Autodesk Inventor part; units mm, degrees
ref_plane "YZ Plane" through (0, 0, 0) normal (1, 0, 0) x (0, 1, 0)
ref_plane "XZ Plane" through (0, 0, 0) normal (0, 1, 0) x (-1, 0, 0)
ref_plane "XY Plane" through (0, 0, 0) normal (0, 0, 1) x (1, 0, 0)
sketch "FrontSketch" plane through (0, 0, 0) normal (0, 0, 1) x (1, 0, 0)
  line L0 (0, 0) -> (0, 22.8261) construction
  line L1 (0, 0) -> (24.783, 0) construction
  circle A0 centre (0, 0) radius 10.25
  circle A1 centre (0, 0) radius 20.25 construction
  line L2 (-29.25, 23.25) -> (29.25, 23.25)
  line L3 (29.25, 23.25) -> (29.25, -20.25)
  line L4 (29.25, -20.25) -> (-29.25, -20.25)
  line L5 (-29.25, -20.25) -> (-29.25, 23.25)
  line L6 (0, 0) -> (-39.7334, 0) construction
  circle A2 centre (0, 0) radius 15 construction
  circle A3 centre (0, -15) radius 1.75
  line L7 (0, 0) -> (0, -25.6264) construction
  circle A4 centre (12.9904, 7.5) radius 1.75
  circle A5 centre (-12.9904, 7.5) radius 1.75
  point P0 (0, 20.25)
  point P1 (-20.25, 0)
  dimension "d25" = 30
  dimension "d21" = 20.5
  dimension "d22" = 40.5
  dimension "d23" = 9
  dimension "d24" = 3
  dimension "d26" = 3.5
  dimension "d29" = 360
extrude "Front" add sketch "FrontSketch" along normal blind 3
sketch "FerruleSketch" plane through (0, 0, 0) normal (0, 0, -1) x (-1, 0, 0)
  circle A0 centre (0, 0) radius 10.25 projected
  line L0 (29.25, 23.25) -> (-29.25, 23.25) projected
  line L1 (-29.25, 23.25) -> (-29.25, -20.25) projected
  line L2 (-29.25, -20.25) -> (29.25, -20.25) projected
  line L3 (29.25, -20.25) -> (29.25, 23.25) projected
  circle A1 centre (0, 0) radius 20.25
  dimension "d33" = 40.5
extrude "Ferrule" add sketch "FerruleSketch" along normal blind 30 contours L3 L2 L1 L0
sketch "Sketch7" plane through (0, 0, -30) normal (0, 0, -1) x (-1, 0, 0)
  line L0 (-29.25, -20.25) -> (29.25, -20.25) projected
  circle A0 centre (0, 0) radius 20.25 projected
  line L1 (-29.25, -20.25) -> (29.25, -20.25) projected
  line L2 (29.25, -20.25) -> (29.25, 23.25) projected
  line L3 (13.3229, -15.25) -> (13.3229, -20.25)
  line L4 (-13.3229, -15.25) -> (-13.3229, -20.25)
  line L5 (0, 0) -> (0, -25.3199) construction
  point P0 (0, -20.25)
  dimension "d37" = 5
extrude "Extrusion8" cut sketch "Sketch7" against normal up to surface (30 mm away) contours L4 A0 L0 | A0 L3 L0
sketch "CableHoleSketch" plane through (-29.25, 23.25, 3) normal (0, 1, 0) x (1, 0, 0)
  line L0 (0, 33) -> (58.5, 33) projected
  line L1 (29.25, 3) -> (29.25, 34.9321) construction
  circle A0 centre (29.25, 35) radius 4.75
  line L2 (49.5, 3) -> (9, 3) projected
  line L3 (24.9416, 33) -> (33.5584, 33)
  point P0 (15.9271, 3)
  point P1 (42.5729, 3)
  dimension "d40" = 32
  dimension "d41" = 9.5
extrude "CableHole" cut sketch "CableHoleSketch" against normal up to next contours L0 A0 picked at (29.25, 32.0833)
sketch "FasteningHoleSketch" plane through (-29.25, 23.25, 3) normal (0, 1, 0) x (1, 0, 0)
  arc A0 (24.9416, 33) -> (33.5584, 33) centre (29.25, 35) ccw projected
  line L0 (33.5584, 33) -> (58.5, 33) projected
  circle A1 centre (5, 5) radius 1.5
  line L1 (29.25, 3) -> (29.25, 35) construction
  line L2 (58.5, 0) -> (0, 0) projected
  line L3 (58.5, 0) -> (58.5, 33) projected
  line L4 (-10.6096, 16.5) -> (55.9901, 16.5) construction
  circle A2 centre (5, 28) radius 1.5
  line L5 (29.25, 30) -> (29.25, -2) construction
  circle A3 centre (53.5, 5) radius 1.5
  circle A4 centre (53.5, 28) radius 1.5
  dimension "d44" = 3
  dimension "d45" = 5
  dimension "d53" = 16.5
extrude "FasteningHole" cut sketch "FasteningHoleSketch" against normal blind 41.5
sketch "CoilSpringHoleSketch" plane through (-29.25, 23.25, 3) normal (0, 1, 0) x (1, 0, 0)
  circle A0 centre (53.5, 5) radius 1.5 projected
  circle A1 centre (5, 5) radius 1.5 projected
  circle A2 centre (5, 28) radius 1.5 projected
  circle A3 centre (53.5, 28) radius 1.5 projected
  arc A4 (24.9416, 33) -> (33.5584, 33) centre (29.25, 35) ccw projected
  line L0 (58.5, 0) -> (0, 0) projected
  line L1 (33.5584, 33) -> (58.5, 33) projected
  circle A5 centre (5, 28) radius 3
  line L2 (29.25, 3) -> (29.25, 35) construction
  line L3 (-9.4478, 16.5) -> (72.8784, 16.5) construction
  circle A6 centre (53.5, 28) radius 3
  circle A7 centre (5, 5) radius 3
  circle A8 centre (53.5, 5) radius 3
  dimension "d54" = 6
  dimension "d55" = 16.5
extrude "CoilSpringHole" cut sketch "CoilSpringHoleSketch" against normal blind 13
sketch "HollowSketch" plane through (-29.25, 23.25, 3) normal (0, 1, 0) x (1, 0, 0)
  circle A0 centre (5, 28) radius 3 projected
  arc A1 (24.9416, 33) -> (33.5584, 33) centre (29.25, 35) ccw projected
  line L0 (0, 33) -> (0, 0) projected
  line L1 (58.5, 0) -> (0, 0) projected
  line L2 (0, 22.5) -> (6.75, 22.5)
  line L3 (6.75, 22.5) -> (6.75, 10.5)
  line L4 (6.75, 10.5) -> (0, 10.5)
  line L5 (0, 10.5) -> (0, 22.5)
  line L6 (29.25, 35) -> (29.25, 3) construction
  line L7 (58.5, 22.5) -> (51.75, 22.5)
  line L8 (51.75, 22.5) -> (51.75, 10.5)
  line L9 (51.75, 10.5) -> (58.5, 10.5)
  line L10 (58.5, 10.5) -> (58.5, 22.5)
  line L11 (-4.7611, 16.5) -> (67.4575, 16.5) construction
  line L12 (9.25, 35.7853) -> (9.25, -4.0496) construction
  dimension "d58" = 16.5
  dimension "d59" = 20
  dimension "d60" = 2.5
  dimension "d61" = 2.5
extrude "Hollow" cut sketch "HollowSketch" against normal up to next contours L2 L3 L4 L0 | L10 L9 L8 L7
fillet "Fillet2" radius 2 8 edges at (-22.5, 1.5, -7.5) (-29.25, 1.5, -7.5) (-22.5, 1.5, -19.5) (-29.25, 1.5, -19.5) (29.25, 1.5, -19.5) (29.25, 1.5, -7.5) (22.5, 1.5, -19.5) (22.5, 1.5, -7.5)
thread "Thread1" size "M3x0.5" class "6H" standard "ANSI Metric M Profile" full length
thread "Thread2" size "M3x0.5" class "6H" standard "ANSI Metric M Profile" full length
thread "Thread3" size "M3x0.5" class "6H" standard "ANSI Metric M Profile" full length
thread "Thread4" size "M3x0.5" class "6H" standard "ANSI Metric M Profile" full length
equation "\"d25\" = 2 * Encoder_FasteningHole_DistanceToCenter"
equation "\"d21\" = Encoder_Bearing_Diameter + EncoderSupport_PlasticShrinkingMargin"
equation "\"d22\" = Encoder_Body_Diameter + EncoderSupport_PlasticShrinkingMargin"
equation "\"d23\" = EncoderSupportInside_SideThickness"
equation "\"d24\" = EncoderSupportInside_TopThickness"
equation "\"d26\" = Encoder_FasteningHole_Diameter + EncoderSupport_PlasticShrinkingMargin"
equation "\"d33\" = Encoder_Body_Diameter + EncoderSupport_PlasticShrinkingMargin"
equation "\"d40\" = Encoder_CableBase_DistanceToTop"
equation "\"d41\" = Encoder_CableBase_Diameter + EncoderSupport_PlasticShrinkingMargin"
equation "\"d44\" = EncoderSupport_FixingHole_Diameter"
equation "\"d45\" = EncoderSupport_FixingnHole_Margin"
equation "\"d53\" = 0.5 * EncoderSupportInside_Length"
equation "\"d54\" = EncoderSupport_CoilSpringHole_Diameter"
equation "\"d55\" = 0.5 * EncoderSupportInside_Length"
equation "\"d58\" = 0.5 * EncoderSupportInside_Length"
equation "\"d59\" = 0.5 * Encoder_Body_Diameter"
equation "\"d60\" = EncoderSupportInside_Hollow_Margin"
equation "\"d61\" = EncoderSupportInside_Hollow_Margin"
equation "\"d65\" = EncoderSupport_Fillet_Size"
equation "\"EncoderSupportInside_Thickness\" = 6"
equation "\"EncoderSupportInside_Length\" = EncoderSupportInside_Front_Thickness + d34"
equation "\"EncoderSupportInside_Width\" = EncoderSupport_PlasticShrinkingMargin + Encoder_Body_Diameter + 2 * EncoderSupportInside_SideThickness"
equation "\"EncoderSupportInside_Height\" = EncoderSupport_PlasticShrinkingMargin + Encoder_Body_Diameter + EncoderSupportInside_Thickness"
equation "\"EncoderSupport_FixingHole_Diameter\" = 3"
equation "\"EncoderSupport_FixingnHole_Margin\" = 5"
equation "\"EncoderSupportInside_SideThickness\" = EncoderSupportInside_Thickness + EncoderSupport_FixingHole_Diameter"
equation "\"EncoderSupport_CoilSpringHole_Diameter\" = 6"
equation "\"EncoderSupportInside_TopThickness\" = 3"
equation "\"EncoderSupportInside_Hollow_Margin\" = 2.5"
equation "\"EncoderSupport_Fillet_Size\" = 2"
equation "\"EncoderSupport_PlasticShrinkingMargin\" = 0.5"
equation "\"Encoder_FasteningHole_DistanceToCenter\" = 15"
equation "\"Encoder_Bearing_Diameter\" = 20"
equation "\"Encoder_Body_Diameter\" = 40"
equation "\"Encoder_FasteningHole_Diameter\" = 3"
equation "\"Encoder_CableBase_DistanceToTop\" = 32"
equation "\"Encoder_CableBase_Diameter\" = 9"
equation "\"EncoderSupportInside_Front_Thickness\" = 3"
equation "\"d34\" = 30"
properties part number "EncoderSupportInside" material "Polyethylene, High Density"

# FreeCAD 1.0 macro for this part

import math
import FreeCAD as App
import Part
import Sketcher
from FreeCAD import Vector


def edges_at(feature, points):
    """Names of the edges that pass closest to the given points."""
    edges = feature.Shape.Edges
    near = lambda p: min(range(len(edges)), key=lambda i: edges[i].distToShape(Part.Vertex(*p))[0])
    return sorted({f"Edge{near(p) + 1}" for p in points})


def add_polygon(sketch, points):
    """Adds a closed chain of lines whose ends are joined by coincident constraints."""
    first, n = sketch.GeometryCount, len(points)
    for a, b in zip(points, points[1:] + points[:1]):
        sketch.addGeometry(Part.LineSegment(App.Vector(*a, 0), App.Vector(*b, 0)), False)
    for i in range(n):
        sketch.addConstraint(Sketcher.Constraint("Coincident", first + i, 2, first + (i + 1) % n, 1))

doc = App.newDocument("Part")
body = doc.addObject("PartDesign::Body", "Body")

sketch1 = doc.addObject("Sketcher::SketchObject", "Sketch")
body.addObject(sketch1)
sketch1.AttachmentSupport = (doc.XY_Plane, [""])
sketch1.MapMode = "FlatFace"
add_polygon(sketch1, [(29.2, 23.2), (-29.2, 23.2), (-29.2, -20.2), (29.2, -20.2)])
sketch1.addGeometry(Part.Circle(Vector(0, -15, 0), Vector(0, 0, 1), 1.8), False)
sketch1.addGeometry(Part.Circle(Vector(0, 0, 0), Vector(0, 0, 1), 10.2), False)
sketch1.addGeometry(Part.Circle(Vector(-13, 7.5, 0), Vector(0, 0, 1), 1.8), False)
sketch1.addGeometry(Part.Circle(Vector(13, 7.5, 0), Vector(0, 0, 1), 1.8), False)
sketch1.addConstraint(Sketcher.Constraint("Horizontal", 0))
sketch1.addConstraint(Sketcher.Constraint("Vertical", 1))
sketch1.addConstraint(Sketcher.Constraint("Horizontal", 2))
sketch1.addConstraint(Sketcher.Constraint("Vertical", 3))
sketch1.addConstraint(Sketcher.Constraint("Coincident", 5, 3, -1, 1))
sketch1.addConstraint(Sketcher.Constraint("Equal", 4, 6))
sketch1.addConstraint(Sketcher.Constraint("Equal", 6, 7))
sketch1.addConstraint(Sketcher.Constraint("Symmetric", 6, 3, 7, 3, -2))
sketch1.addConstraint(Sketcher.Constraint("PointOnObject", 4, 3, -2))
sketch1.addConstraint(Sketcher.Constraint("Diameter", 4, 3.5))
sketch1.addConstraint(Sketcher.Constraint("Diameter", 5, 20.5))
sketch1.addConstraint(Sketcher.Constraint("DistanceX", 0, 2, 0, 1, 58.5))
sketch1.addConstraint(Sketcher.Constraint("DistanceY", 1, 2, 1, 1, 43.5))
sketch1.addConstraint(Sketcher.Constraint("DistanceY", 4, 3, -1, 1, 15.0))
sketch1.addConstraint(Sketcher.Constraint("DistanceY", -1, 1, 6, 3, 7.5))
sketch1.addConstraint(Sketcher.Constraint("DistanceX", 0, 2, -1, 1, 29.25))
sketch1.addConstraint(Sketcher.Constraint("DistanceY", -1, 1, 0, 2, 23.25))
sketch1.addConstraint(Sketcher.Constraint("DistanceX", 6, 3, -1, 1, 12.9904))
pad1 = doc.addObject("PartDesign::Pad", "Pad")
body.addObject(pad1)
pad1.Profile = sketch1
pad1.Length = 3

sketch2 = doc.addObject("Sketcher::SketchObject", "Sketch001")
body.addObject(sketch2)
sketch2.AttachmentSupport = (doc.XY_Plane, [""])
sketch2.MapMode = "FlatFace"
add_polygon(sketch2, [(-29, -20), (-29, 23), (29, 23), (29, -20), (0, -20)])
sketch2.addGeometry(Part.Circle(Vector(0, 0, 0), Vector(0, 0, 1), 20), False)
sketch2.addConstraint(Sketcher.Constraint("Vertical", 0))
sketch2.addConstraint(Sketcher.Constraint("Horizontal", 1))
sketch2.addConstraint(Sketcher.Constraint("Vertical", 2))
sketch2.addConstraint(Sketcher.Constraint("Horizontal", 3))
sketch2.addConstraint(Sketcher.Constraint("Horizontal", 4))
sketch2.addConstraint(Sketcher.Constraint("Coincident", 5, 3, -1, 1))
sketch2.addConstraint(Sketcher.Constraint("PointOnObject", 3, 2, -2))
sketch2.addConstraint(Sketcher.Constraint("Equal", 3, 4))
sketch2.addConstraint(Sketcher.Constraint("Diameter", 5, 40.5))
sketch2.addConstraint(Sketcher.Constraint("DistanceX", 1, 1, 1, 2, 58.5))
sketch2.addConstraint(Sketcher.Constraint("DistanceY", 0, 1, 0, 2, 43.5))
sketch2.addConstraint(Sketcher.Constraint("DistanceY", -1, 1, 0, 2, 23.25))
pad2 = doc.addObject("PartDesign::Pad", "Pad001")
body.addObject(pad2)
pad2.Profile = sketch2
pad2.Length = 30
pad2.Reversed = True

sketch3 = doc.addObject("Sketcher::SketchObject", "Sketch002")
body.addObject(sketch3)
sketch3.AttachmentSupport = (doc.XY_Plane, [""])
sketch3.MapMode = "FlatFace"
sketch3.AttachmentOffset = App.Placement(Vector(0, 0, -30), App.Rotation())
sketch3.addGeometry(Part.LineSegment(Vector(13, -15, 0), Vector(13, -20, 0)), False)
sketch3.addGeometry(Part.LineSegment(Vector(13, -20, 0), Vector(0, -20, 0)), False)
sketch3.addGeometry(Part.ArcOfCircle(Part.Circle(Vector(0, 0, 0), Vector(0, 0, 1), 20), math.radians(-90), math.radians(-49)), False)
sketch3.addGeometry(Part.ArcOfCircle(Part.Circle(Vector(0, 0, 0), Vector(0, 0, 1), 20), math.radians(-131), math.radians(-90)), False)
sketch3.addGeometry(Part.LineSegment(Vector(0, -20, 0), Vector(-13, -20, 0)), False)
sketch3.addGeometry(Part.LineSegment(Vector(-13, -20, 0), Vector(-13, -15, 0)), False)
sketch3.addConstraint(Sketcher.Constraint("Coincident", 0, 2, 1, 1))
sketch3.addConstraint(Sketcher.Constraint("Tangent", 1, 2, 2, 1))
sketch3.addConstraint(Sketcher.Constraint("Coincident", 2, 2, 0, 1))
sketch3.addConstraint(Sketcher.Constraint("Tangent", 3, 2, 4, 1))
sketch3.addConstraint(Sketcher.Constraint("Coincident", 4, 2, 5, 1))
sketch3.addConstraint(Sketcher.Constraint("Coincident", 5, 2, 3, 1))
sketch3.addConstraint(Sketcher.Constraint("Vertical", 0))
sketch3.addConstraint(Sketcher.Constraint("Horizontal", 1))
sketch3.addConstraint(Sketcher.Constraint("Horizontal", 4))
sketch3.addConstraint(Sketcher.Constraint("Vertical", 5))
sketch3.addConstraint(Sketcher.Constraint("Coincident", 2, 3, -1, 1))
sketch3.addConstraint(Sketcher.Constraint("Coincident", 3, 3, -1, 1))
sketch3.addConstraint(Sketcher.Constraint("Equal", 2, 3))
sketch3.addConstraint(Sketcher.Constraint("Horizontal", 2, 2, 5, 2))
sketch3.addConstraint(Sketcher.Constraint("DistanceY", 0, 2, 0, 1, 5.0))
sketch3.addConstraint(Sketcher.Constraint("Radius", 2, 20.25))
pocket1 = doc.addObject("PartDesign::Pocket", "Pocket")
body.addObject(pocket1)
pocket1.Profile = sketch3
pocket1.Length = 30
pocket1.Reversed = True

sketch4 = doc.addObject("Sketcher::SketchObject", "Sketch003")
body.addObject(sketch4)
sketch4.AttachmentSupport = (doc.XZ_Plane, [""])
sketch4.MapMode = "FlatFace"
sketch4.AttachmentOffset = App.Placement(Vector(0, 0, -23.25), App.Rotation())
sketch4.addGeometry(Part.LineSegment(Vector(4.3, -30, 0), Vector(-4.3, -30, 0)), False)
sketch4.addGeometry(Part.ArcOfCircle(Part.Circle(Vector(0, -32, 0), Vector(0, 0, 1), 4.8), math.radians(25), math.radians(155)), False)
sketch4.addConstraint(Sketcher.Constraint("Coincident", 0, 1, 1, 1))
sketch4.addConstraint(Sketcher.Constraint("Coincident", 1, 2, 0, 2))
sketch4.addConstraint(Sketcher.Constraint("Horizontal", 0))
sketch4.addConstraint(Sketcher.Constraint("PointOnObject", 1, 3, -2))
sketch4.addConstraint(Sketcher.Constraint("Radius", 1, 4.75))
sketch4.addConstraint(Sketcher.Constraint("DistanceY", 1, 3, -1, 1, 32.0))
sketch4.addConstraint(Sketcher.Constraint("DistanceY", 0, 1, -1, 1, 30.0))
pocket2 = doc.addObject("PartDesign::Pocket", "Pocket001")
body.addObject(pocket2)
pocket2.Profile = sketch4
pocket2.Type = "UpToFirst"
pocket2.Reversed = True

sketch5 = doc.addObject("Sketcher::SketchObject", "Sketch004")
body.addObject(sketch5)
sketch5.AttachmentSupport = (doc.XZ_Plane, [""])
sketch5.MapMode = "FlatFace"
sketch5.AttachmentOffset = App.Placement(Vector(0, 0, -23.25), App.Rotation())
sketch5.addGeometry(Part.Circle(Vector(-24.2, -2, 0), Vector(0, 0, 1), 1.5), False)
sketch5.addGeometry(Part.Circle(Vector(-24.2, -25, 0), Vector(0, 0, 1), 1.5), False)
sketch5.addGeometry(Part.Circle(Vector(24.2, -2, 0), Vector(0, 0, 1), 1.5), False)
sketch5.addGeometry(Part.Circle(Vector(24.2, -25, 0), Vector(0, 0, 1), 1.5), False)
sketch5.addConstraint(Sketcher.Constraint("Equal", 0, 1))
sketch5.addConstraint(Sketcher.Constraint("Equal", 1, 2))
sketch5.addConstraint(Sketcher.Constraint("Equal", 2, 3))
sketch5.addConstraint(Sketcher.Constraint("Symmetric", 0, 3, 2, 3, -2))
sketch5.addConstraint(Sketcher.Constraint("Symmetric", 1, 3, 3, 3, -2))
sketch5.addConstraint(Sketcher.Constraint("Vertical", 0, 3, 1, 3))
sketch5.addConstraint(Sketcher.Constraint("Diameter", 0, 3.0))
sketch5.addConstraint(Sketcher.Constraint("DistanceY", 0, 3, -1, 1, 2.0))
sketch5.addConstraint(Sketcher.Constraint("DistanceY", 1, 3, -1, 1, 25.0))
sketch5.addConstraint(Sketcher.Constraint("DistanceX", 0, 3, 2, 3, 48.5))
pocket3 = doc.addObject("PartDesign::Pocket", "Pocket002")
body.addObject(pocket3)
pocket3.Profile = sketch5
pocket3.Length = 41.5
pocket3.Reversed = True

sketch6 = doc.addObject("Sketcher::SketchObject", "Sketch005")
body.addObject(sketch6)
sketch6.AttachmentSupport = (doc.XZ_Plane, [""])
sketch6.MapMode = "FlatFace"
sketch6.AttachmentOffset = App.Placement(Vector(0, 0, -23.25), App.Rotation())
sketch6.addGeometry(Part.Circle(Vector(-24.2, -25, 0), Vector(0, 0, 1), 3), False)
sketch6.addGeometry(Part.Circle(Vector(-24.2, -25, 0), Vector(0, 0, 1), 1.5), False)
sketch6.addGeometry(Part.Circle(Vector(24.2, -25, 0), Vector(0, 0, 1), 3), False)
sketch6.addGeometry(Part.Circle(Vector(24.2, -25, 0), Vector(0, 0, 1), 1.5), False)
sketch6.addGeometry(Part.Circle(Vector(-24.2, -2, 0), Vector(0, 0, 1), 3), False)
sketch6.addGeometry(Part.Circle(Vector(-24.2, -2, 0), Vector(0, 0, 1), 1.5), False)
sketch6.addGeometry(Part.Circle(Vector(24.2, -2, 0), Vector(0, 0, 1), 3), False)
sketch6.addGeometry(Part.Circle(Vector(24.2, -2, 0), Vector(0, 0, 1), 1.5), False)
sketch6.addConstraint(Sketcher.Constraint("Coincident", 1, 3, 0, 3))
sketch6.addConstraint(Sketcher.Constraint("Coincident", 3, 3, 2, 3))
sketch6.addConstraint(Sketcher.Constraint("Coincident", 5, 3, 4, 3))
sketch6.addConstraint(Sketcher.Constraint("Coincident", 7, 3, 6, 3))
sketch6.addConstraint(Sketcher.Constraint("Equal", 0, 2))
sketch6.addConstraint(Sketcher.Constraint("Equal", 1, 3))
sketch6.addConstraint(Sketcher.Constraint("Equal", 2, 4))
sketch6.addConstraint(Sketcher.Constraint("Equal", 3, 5))
sketch6.addConstraint(Sketcher.Constraint("Equal", 4, 6))
sketch6.addConstraint(Sketcher.Constraint("Equal", 5, 7))
sketch6.addConstraint(Sketcher.Constraint("Symmetric", 0, 3, 2, 3, -2))
sketch6.addConstraint(Sketcher.Constraint("Symmetric", 4, 3, 6, 3, -2))
sketch6.addConstraint(Sketcher.Constraint("Vertical", 1, 3, 4, 3))
sketch6.addConstraint(Sketcher.Constraint("Diameter", 0, 6.0))
sketch6.addConstraint(Sketcher.Constraint("Diameter", 1, 3.0))
sketch6.addConstraint(Sketcher.Constraint("DistanceY", 0, 3, -1, 1, 25.0))
sketch6.addConstraint(Sketcher.Constraint("DistanceY", 4, 3, -1, 1, 2.0))
sketch6.addConstraint(Sketcher.Constraint("DistanceX", 0, 3, 2, 3, 48.5))
pocket4 = doc.addObject("PartDesign::Pocket", "Pocket003")
body.addObject(pocket4)
pocket4.Profile = sketch6
pocket4.Length = 13
pocket4.Reversed = True

sketch7 = doc.addObject("Sketcher::SketchObject", "Sketch006")
body.addObject(sketch7)
sketch7.AttachmentSupport = (doc.XZ_Plane, [""])
sketch7.MapMode = "FlatFace"
sketch7.AttachmentOffset = App.Placement(Vector(0, 0, -23.25), App.Rotation())
add_polygon(sketch7, [(-22, -20), (-29, -20), (-29, -8), (-22, -8)])
add_polygon(sketch7, [(29, -8), (29, -20), (22, -20), (22, -8)])
sketch7.addConstraint(Sketcher.Constraint("Horizontal", 0))
sketch7.addConstraint(Sketcher.Constraint("Vertical", 1))
sketch7.addConstraint(Sketcher.Constraint("Horizontal", 2))
sketch7.addConstraint(Sketcher.Constraint("Vertical", 3))
sketch7.addConstraint(Sketcher.Constraint("Vertical", 4))
sketch7.addConstraint(Sketcher.Constraint("Horizontal", 5))
sketch7.addConstraint(Sketcher.Constraint("Vertical", 6))
sketch7.addConstraint(Sketcher.Constraint("Horizontal", 7))
sketch7.addConstraint(Sketcher.Constraint("Symmetric", 0, 2, 4, 2, -2))
sketch7.addConstraint(Sketcher.Constraint("Symmetric", 2, 2, 6, 2, -2))
sketch7.addConstraint(Sketcher.Constraint("DistanceY", 1, 1, 1, 2, 12.0))
sketch7.addConstraint(Sketcher.Constraint("DistanceX", 3, 2, 5, 2, 45.0))
sketch7.addConstraint(Sketcher.Constraint("DistanceX", 0, 2, 0, 1, 6.75))
sketch7.addConstraint(Sketcher.Constraint("DistanceY", 0, 2, -1, 1, 19.5))
pocket5 = doc.addObject("PartDesign::Pocket", "Pocket004")
body.addObject(pocket5)
pocket5.Profile = sketch7
pocket5.Length = 43.5
pocket5.Reversed = True
doc.recompute()

fillet = doc.addObject("PartDesign::Fillet", "Fillet")
body.addObject(fillet)
fillet.Base = (pocket5, edges_at(pocket5, [
    (-22.5, 1.5, -7.5),
    (-29.25, 1.5, -7.5),
    (-22.5, 1.5, -19.5),
    (-29.25, 1.5, -19.5),
    (29.25, 1.5, -19.5),
    (29.25, 1.5, -7.5),
    (22.5, 1.5, -19.5),
    (22.5, 1.5, -7.5),
]))
fillet.Radius = 2

doc.recompute()
